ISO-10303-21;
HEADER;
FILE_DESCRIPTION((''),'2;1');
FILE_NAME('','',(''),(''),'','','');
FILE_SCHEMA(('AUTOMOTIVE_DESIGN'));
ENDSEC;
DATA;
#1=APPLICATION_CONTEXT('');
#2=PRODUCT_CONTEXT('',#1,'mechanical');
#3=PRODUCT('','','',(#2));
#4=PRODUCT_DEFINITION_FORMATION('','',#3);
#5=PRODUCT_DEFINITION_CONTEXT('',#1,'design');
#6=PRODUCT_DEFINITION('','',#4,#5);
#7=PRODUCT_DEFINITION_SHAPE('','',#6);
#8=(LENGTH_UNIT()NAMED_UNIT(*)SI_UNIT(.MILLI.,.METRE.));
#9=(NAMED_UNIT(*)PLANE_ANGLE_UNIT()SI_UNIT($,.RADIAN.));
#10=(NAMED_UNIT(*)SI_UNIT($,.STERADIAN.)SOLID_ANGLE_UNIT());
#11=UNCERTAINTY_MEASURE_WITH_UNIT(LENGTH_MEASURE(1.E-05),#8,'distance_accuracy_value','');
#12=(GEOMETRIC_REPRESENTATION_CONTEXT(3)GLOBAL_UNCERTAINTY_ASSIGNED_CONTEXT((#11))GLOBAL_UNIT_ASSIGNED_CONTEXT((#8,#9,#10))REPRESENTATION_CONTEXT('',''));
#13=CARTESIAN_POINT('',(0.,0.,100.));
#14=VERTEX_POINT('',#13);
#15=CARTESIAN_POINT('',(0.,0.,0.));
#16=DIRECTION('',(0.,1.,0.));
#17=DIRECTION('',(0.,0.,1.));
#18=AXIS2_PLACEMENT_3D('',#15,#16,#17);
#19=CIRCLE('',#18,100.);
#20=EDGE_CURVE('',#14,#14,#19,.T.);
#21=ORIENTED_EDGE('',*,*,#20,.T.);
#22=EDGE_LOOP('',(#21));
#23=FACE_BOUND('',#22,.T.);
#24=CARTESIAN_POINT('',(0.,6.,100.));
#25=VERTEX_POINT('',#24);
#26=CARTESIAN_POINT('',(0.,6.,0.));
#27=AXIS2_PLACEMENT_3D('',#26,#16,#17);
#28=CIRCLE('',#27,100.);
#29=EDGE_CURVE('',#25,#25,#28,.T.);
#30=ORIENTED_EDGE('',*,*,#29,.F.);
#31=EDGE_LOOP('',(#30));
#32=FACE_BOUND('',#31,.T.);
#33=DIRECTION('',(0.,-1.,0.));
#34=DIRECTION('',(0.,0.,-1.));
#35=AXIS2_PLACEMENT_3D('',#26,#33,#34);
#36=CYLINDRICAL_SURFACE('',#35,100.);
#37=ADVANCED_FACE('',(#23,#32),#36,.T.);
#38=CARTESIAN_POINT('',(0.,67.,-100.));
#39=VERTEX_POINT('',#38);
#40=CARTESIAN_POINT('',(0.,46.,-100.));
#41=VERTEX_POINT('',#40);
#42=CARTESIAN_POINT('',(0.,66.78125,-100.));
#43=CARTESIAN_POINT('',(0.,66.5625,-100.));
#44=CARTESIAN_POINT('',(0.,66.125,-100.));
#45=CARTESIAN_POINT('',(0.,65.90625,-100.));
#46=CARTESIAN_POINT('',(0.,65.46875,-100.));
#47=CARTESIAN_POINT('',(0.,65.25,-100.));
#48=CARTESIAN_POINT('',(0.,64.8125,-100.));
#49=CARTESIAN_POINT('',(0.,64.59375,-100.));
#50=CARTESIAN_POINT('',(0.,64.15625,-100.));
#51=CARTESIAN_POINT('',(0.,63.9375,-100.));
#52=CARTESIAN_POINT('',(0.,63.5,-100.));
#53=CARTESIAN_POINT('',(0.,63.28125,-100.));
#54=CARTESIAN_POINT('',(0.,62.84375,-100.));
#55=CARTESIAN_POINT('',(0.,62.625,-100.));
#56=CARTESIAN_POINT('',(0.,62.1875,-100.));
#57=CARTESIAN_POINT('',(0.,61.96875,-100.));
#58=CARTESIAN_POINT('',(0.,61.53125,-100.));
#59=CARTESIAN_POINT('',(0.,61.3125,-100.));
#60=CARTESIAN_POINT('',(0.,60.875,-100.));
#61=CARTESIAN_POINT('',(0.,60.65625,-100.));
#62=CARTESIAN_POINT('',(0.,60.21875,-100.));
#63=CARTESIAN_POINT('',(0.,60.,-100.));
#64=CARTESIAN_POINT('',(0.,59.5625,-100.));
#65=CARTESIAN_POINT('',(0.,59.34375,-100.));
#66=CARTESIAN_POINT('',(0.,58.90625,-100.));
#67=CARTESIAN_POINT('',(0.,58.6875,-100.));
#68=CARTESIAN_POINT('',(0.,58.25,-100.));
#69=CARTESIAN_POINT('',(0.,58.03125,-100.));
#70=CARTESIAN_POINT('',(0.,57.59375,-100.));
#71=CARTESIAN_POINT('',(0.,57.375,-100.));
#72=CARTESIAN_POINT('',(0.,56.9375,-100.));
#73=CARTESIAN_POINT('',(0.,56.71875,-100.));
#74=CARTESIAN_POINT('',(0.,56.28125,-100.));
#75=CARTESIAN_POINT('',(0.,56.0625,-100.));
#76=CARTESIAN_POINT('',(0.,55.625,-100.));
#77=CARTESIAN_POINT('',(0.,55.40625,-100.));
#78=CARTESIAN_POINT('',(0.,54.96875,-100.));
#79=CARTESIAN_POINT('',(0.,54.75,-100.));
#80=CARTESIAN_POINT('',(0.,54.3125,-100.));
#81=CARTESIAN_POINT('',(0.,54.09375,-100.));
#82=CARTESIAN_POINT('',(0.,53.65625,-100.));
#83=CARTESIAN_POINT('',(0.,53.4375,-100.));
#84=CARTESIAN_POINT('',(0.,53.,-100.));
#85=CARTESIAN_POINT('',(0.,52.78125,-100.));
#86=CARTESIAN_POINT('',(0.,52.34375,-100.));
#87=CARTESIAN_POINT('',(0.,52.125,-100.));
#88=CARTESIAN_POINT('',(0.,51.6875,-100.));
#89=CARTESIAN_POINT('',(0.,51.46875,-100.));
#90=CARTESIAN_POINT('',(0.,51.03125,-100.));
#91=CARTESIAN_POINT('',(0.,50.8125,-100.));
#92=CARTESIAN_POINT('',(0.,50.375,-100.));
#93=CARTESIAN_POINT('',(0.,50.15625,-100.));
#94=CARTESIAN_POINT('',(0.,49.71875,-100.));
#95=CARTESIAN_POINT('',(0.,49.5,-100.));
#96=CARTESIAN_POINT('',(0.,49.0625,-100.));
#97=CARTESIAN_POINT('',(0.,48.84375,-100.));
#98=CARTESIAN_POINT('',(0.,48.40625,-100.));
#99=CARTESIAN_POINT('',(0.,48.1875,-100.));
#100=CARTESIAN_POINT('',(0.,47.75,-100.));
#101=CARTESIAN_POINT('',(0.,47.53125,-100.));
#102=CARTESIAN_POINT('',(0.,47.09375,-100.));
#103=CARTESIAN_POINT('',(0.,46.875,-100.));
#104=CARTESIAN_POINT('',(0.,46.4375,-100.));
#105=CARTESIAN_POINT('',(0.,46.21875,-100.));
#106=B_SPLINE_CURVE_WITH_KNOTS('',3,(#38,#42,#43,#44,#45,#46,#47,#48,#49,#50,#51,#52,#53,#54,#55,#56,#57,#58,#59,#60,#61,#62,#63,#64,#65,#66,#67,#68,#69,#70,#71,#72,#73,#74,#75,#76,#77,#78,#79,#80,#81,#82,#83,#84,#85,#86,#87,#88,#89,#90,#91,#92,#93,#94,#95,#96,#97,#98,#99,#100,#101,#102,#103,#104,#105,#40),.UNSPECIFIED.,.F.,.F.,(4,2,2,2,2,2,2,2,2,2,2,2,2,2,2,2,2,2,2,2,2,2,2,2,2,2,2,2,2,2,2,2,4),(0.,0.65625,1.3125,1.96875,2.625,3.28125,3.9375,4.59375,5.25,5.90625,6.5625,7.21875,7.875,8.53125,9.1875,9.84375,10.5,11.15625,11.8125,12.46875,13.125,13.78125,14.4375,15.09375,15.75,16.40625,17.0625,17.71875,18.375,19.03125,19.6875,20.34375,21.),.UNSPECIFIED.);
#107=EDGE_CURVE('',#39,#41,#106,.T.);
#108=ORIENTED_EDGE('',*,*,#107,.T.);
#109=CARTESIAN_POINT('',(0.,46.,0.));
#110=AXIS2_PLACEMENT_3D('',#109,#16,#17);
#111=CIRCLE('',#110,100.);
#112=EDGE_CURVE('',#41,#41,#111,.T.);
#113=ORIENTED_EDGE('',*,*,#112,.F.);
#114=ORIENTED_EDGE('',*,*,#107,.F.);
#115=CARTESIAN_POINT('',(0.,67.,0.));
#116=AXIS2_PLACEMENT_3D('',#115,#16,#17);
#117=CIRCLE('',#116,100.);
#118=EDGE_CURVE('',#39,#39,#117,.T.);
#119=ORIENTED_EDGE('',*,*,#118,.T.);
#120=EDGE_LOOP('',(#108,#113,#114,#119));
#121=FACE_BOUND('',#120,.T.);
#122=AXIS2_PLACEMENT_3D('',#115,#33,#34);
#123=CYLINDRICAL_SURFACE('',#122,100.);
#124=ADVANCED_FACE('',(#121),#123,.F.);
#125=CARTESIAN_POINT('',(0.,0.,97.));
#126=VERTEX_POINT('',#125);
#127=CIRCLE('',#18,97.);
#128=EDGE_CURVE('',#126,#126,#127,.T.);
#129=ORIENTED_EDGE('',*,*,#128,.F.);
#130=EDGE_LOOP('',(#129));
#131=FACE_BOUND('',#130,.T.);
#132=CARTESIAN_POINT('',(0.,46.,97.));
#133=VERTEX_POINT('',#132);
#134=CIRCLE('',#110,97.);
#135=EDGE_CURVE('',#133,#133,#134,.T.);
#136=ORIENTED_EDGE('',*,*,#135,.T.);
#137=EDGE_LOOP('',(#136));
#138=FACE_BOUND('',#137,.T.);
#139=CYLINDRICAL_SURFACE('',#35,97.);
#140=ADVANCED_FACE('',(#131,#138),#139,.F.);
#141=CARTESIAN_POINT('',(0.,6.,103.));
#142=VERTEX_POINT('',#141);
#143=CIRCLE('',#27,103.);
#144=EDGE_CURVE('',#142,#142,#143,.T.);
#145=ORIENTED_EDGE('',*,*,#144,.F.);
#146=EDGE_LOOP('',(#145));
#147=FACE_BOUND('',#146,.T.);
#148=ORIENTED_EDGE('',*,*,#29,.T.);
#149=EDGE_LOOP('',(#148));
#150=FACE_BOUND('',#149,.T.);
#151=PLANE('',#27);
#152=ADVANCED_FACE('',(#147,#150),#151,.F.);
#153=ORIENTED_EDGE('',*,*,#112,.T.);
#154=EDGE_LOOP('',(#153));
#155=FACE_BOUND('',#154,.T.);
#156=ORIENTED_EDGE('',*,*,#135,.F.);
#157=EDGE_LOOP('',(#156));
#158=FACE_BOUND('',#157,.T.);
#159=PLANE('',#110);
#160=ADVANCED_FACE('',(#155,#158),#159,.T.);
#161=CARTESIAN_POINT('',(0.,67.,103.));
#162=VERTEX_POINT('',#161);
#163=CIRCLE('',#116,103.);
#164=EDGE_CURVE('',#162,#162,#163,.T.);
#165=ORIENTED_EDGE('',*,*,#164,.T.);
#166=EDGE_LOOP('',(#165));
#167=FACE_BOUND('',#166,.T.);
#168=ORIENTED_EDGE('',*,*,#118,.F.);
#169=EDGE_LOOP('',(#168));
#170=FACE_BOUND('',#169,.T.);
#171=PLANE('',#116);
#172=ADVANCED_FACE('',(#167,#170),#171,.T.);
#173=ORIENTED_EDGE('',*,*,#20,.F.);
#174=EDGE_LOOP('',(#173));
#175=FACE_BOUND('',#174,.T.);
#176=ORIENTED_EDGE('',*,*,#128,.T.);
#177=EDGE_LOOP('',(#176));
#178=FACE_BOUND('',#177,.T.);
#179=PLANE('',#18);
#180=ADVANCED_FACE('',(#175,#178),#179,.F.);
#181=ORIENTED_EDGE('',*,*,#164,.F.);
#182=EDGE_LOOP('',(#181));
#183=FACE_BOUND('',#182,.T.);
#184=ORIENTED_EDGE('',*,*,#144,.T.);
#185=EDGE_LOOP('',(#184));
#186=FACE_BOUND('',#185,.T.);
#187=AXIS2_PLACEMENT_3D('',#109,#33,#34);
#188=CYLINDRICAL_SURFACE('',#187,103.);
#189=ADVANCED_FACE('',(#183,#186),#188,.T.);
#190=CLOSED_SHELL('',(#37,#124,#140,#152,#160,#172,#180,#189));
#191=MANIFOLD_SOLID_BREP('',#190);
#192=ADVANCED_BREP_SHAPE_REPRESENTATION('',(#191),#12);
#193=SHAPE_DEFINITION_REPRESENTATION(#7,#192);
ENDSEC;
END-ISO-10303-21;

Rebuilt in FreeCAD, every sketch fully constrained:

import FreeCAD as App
import Part
import Sketcher
from FreeCAD import Vector
Q = App.Units.Quantity

doc = App.newDocument("Part")
body = doc.addObject("PartDesign::Body", "Body")

sketch1 = body.newObject("Sketcher::SketchObject", "Sketch")
sketch1.AttachmentSupport = (doc.getObject("XZ_Plane"), [""])
sketch1.MapMode = "FlatFace"
sketch1.addGeometry([
    Part.Circle(Vector(0, 0, 0), Vector(0, 0, 1), 100),
    Part.Circle(Vector(0, 0, 0), Vector(0, 0, 1), 97),
], False)
sketch1.addConstraint([
    Sketcher.Constraint("Coincident", 0, 3, -1, 1),
    Sketcher.Constraint("Coincident", 1, 3, -1, 1),
    Sketcher.Constraint("Diameter", 0, Q("200 mm")),
    Sketcher.Constraint("Diameter", 1, Q("194 mm")),
])
pad1 = body.newObject("PartDesign::Pad", "Pad")
pad1.Profile = sketch1
pad1.Length = 6
pad1.Reversed = True

sketch2 = body.newObject("Sketcher::SketchObject", "Sketch001")
sketch2.AttachmentSupport = (doc.getObject("XZ_Plane"), [""])
sketch2.MapMode = "FlatFace"
sketch2.AttachmentOffset = App.Placement(Vector(0, 0, -6), App.Rotation())
sketch2.addGeometry([
    Part.Circle(Vector(0, 0, 0), Vector(0, 0, 1), 103),
    Part.Circle(Vector(0, 0, 0), Vector(0, 0, 1), 97),
], False)
sketch2.addConstraint([
    Sketcher.Constraint("Coincident", 0, 3, -1, 1),
    Sketcher.Constraint("Coincident", 1, 3, -1, 1),
    Sketcher.Constraint("Diameter", 0, Q("206 mm")),
    Sketcher.Constraint("Diameter", 1, Q("194 mm")),
])
pad2 = body.newObject("PartDesign::Pad", "Pad001")
pad2.Profile = sketch2
pad2.Length = 40
pad2.Reversed = True

sketch3 = body.newObject("Sketcher::SketchObject", "Sketch002")
sketch3.AttachmentSupport = (doc.getObject("XZ_Plane"), [""])
sketch3.MapMode = "FlatFace"
sketch3.AttachmentOffset = App.Placement(Vector(0, 0, -46), App.Rotation())
sketch3.addGeometry([
    Part.Circle(Vector(0, 0, 0), Vector(0, 0, 1), 103),
    Part.Circle(Vector(0, 0, 0), Vector(0, 0, 1), 100),
], False)
sketch3.addConstraint([
    Sketcher.Constraint("Coincident", 0, 3, -1, 1),
    Sketcher.Constraint("Coincident", 1, 3, -1, 1),
    Sketcher.Constraint("Diameter", 0, Q("206 mm")),
    Sketcher.Constraint("Diameter", 1, Q("200 mm")),
])
pad3 = body.newObject("PartDesign::Pad", "Pad002")
pad3.Profile = sketch3
pad3.Length = 21
pad3.Reversed = True

doc.recompute()
